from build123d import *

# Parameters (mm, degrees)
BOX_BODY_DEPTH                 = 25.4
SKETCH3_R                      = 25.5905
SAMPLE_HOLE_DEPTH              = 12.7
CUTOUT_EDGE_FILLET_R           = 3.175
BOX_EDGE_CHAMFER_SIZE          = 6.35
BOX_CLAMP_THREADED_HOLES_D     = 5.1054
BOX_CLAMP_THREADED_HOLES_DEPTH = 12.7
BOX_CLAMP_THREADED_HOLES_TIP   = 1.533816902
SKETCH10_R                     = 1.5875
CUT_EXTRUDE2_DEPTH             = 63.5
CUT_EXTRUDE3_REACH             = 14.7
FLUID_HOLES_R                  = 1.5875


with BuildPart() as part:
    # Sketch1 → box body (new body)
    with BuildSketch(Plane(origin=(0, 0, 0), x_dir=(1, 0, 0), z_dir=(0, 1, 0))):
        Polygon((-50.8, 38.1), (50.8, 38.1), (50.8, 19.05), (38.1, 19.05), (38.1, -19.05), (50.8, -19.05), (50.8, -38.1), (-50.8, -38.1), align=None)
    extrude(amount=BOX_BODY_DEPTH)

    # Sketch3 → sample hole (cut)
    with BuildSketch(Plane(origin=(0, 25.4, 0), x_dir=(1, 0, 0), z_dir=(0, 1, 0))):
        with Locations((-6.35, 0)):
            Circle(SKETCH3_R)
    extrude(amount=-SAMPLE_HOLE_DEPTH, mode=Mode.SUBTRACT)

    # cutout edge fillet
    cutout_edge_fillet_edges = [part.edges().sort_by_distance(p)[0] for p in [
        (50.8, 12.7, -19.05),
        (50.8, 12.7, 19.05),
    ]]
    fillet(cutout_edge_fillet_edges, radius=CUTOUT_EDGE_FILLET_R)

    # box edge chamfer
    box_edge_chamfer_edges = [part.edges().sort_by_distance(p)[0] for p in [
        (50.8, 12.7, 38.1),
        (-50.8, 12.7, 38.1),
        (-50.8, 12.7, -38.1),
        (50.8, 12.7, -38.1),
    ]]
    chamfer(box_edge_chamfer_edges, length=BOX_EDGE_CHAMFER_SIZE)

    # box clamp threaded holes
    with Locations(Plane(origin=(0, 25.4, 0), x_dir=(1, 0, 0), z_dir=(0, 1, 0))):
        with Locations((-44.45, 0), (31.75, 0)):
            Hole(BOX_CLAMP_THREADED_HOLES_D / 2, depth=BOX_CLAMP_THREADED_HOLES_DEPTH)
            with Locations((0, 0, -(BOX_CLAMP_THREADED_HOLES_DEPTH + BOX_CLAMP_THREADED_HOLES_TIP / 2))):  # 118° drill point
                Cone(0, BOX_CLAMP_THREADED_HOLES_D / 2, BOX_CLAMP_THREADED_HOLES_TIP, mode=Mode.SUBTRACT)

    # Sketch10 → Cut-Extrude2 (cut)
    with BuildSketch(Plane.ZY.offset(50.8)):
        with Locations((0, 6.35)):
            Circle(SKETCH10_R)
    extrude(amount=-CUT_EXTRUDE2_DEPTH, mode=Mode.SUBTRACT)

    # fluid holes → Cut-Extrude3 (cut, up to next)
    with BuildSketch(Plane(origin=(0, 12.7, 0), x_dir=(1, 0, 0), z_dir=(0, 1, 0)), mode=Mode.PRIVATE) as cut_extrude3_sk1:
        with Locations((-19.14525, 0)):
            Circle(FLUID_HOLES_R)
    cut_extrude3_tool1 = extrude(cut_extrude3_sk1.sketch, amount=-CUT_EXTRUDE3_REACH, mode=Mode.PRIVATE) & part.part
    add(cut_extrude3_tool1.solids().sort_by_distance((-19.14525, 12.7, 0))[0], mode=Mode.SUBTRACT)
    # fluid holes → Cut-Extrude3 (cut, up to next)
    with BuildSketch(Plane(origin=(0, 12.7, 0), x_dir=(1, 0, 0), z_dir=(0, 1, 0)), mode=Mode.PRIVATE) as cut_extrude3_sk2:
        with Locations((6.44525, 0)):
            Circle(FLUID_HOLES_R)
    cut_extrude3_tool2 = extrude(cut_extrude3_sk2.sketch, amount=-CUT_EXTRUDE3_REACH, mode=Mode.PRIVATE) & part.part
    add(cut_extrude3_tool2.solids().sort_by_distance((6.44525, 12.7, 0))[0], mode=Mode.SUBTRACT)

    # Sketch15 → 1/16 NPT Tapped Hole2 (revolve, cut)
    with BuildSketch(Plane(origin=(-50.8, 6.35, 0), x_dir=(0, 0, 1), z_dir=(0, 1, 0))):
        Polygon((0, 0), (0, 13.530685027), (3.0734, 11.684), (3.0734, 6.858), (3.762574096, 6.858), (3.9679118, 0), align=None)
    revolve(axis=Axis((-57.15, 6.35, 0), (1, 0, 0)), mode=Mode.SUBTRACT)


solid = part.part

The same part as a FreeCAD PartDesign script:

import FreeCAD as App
import Part
import Sketcher

V = App.Vector
Q = App.Units.Quantity


def edges_at(feature, points):
    """Names of the edges that pass closest to the given points."""
    edges = feature.Shape.Edges
    near = lambda p: min(range(len(edges)), key=lambda i: edges[i].distToShape(Part.Vertex(*p))[0])
    return sorted({f"Edge{near(p) + 1}" for p in points})


def add_polygon(sketch, points):
    """Adds a closed chain of lines whose ends are joined by coincident constraints."""
    first, n = sketch.GeometryCount, len(points)
    for a, b in zip(points, points[1:] + points[:1]):
        sketch.addGeometry(Part.LineSegment(App.Vector(*a, 0), App.Vector(*b, 0)), False)
    for i in range(n):
        sketch.addConstraint(Sketcher.Constraint("Coincident", first + i, 2, first + (i + 1) % n, 1))

doc = App.newDocument("Part")
params = doc.addObject("Spreadsheet::Sheet", "Params")
for row, (alias, value) in enumerate([
    ("sketch1_width", "4 in"),
    ("sketch1_height", "3 in"),
    ("sketch1_width2", "0.5 in"),
    ("sketch1_height2", "1.5 in"),
    ("pad1_length", "1 in"),
    ("sketch2_diameter", "2.015 in"),
    ("pocket1_length", "0.5 in"),
    ("fillet_radius", "0.125 in"),
    ("chamfer_size", "0.25 in"),
    ("sketch3_diameter", "0.201 in"),
    ("hole_diameter", "0.201 in"),
    ("hole_depth", "0.5 in"),
    ("sketch4_diameter", "0.125 in"),
    ("pocket2_length", "2.5 in"),
    ("sketch5_diameter", "0.125 in"),
    ("pocket3_length", "0.25 in"),
    ("sketch6_diameter", "0.125 in"),
    ("pocket4_length", "0.25 in"),
    ("sketch7_width", "0.19 in"),
    ("groove_angle", "360 deg"),
], start=1):
    params.set(f"A{row}", alias)
    params.set(f"B{row}", "=" + value)
    params.setAlias(f"B{row}", alias)

body = doc.addObject("PartDesign::Body", "Body")

# Sketch on XZ plane
sketch1 = body.newObject("Sketcher::SketchObject", "Sketch")
sketch1.AttachmentSupport = (doc.getObject("XZ_Plane"), [""])
sketch1.MapMode = "FlatFace"
add_polygon(sketch1, [(51, -38), (-51, -38), (-51, 38), (51, 38), (51, 19), (38, 19), (38, -19), (51, -19)])  # lines 0-7
sketch1.addConstraint([
    Sketcher.Constraint("Horizontal", 0),
    Sketcher.Constraint("Vertical", 1),
    Sketcher.Constraint("Horizontal", 2),
    Sketcher.Constraint("Vertical", 3),
    Sketcher.Constraint("Horizontal", 4),
    Sketcher.Constraint("Vertical", 5),
    Sketcher.Constraint("Horizontal", 6),
    Sketcher.Constraint("Vertical", 7),
    Sketcher.Constraint("Symmetric", 0, 2, 2, 2, -1, 1),
    Sketcher.Constraint("Symmetric", 3, 2, 6, 2, -1),
    Sketcher.Constraint("DistanceX", 0, 2, 0, 1, Q("4 in")),
    Sketcher.Constraint("DistanceY", 1, 1, 1, 2, Q("3 in")),
    Sketcher.Constraint("DistanceX", 4, 2, 4, 1, Q("0.5 in")),
    Sketcher.Constraint("DistanceY", 5, 2, 5, 1, Q("1.5 in")),
])
sketch1.setExpression("Constraints[18]", "Params.sketch1_width")
sketch1.setExpression("Constraints[19]", "Params.sketch1_height")
sketch1.setExpression("Constraints[20]", "Params.sketch1_width2")
sketch1.setExpression("Constraints[21]", "Params.sketch1_height2")
pad1 = body.newObject("PartDesign::Pad", "Pad")
pad1.Profile = sketch1
pad1.setExpression("Length", "Params.pad1_length")
pad1.Reversed = True

# Sketch on XZ plane
sketch2 = body.newObject("Sketcher::SketchObject", "Sketch001")
sketch2.AttachmentSupport = (doc.getObject("XZ_Plane"), [""])
sketch2.MapMode = "FlatFace"
sketch2.AttachmentOffset = App.Placement(V(0, 0, -1 * 25.4), App.Rotation())
sketch2.addGeometry(Part.Circle(V(-6, 0, 0), V(0, 0, 1), 26), False)
sketch2.addConstraint([
    Sketcher.Constraint("PointOnObject", 0, 3, -1),
    Sketcher.Constraint("Diameter", 0, Q("2.015 in")),
    Sketcher.Constraint("DistanceX", 0, 3, -1, 1, Q("0.25 in")),
])
sketch2.setExpression("Constraints[1]", "Params.sketch2_diameter")
pocket1 = body.newObject("PartDesign::Pocket", "Pocket")
pocket1.Profile = sketch2
pocket1.setExpression("Length", "Params.pocket1_length")
pocket1.Reversed = True
doc.recompute()

fillet = body.newObject("PartDesign::Fillet", "Fillet")
fillet.Base = (pocket1, edges_at(pocket1, [(50.8, 12.7, -19.05), (50.8, 12.7, 19.05)]))
fillet.setExpression("Radius", "Params.fillet_radius")
doc.recompute()

chamfer = body.newObject("PartDesign::Chamfer", "Chamfer")
chamfer.Base = (fillet, edges_at(fillet, [
    (50.8, 12.7, 38.1),
    (-50.8, 12.7, 38.1),
    (-50.8, 12.7, -38.1),
    (50.8, 12.7, -38.1),
]))
chamfer.setExpression("Size", "Params.chamfer_size")

# Sketch on XZ plane
sketch3 = body.newObject("Sketcher::SketchObject", "Sketch002")
sketch3.AttachmentSupport = (doc.getObject("XZ_Plane"), [""])
sketch3.MapMode = "FlatFace"
sketch3.AttachmentOffset = App.Placement(V(0, 0, -1 * 25.4), App.Rotation())
sketch3.addGeometry([
    Part.Circle(V(-44.5, 0, 0), V(0, 0, 1), 2.6),
    Part.Circle(V(31.8, 0, 0), V(0, 0, 1), 2.6),
], False)
sketch3.addConstraint([
    Sketcher.Constraint("Equal", 0, 1),
    Sketcher.Constraint("PointOnObject", 0, 3, -1),
    Sketcher.Constraint("PointOnObject", 1, 3, -1),
    Sketcher.Constraint("Diameter", 0, Q("0.201 in")),
    Sketcher.Constraint("DistanceX", 0, 3, 1, 3, Q("3 in")),
    Sketcher.Constraint("DistanceX", 0, 3, -1, 1, Q("1.75 in")),
])
sketch3.setExpression("Constraints[3]", "Params.sketch3_diameter")
doc.recompute()
hole = body.newObject("PartDesign::Hole", "Hole")
hole.Profile = sketch3
hole.ThreadType = "None"
hole.setExpression("Diameter", "Params.hole_diameter")
hole.DepthType = "Dimension"
hole.setExpression("Depth", "Params.hole_depth")
hole.DrillPoint = "Angled"
hole.DrillPointAngle = 118
hole.Reversed = True

# Sketch on YZ plane
sketch4 = body.newObject("Sketcher::SketchObject", "Sketch003")
sketch4.AttachmentSupport = (doc.getObject("YZ_Plane"), [""])
sketch4.MapMode = "FlatFace"
sketch4.AttachmentOffset = App.Placement(V(0, 0, -2 * 25.4), App.Rotation())
sketch4.addGeometry(Part.Circle(V(6.3, 0, 0), V(0, 0, 1), 1.6), False)
sketch4.addConstraint([
    Sketcher.Constraint("PointOnObject", 0, 3, -1),
    Sketcher.Constraint("Diameter", 0, Q("0.125 in")),
    Sketcher.Constraint("DistanceX", -1, 1, 0, 3, Q("0.25 in")),
])
sketch4.setExpression("Constraints[1]", "Params.sketch4_diameter")
pocket2 = body.newObject("PartDesign::Pocket", "Pocket001")
pocket2.Profile = sketch4
pocket2.setExpression("Length", "Params.pocket2_length")
pocket2.Reversed = True

# Sketch on XZ plane
sketch5 = body.newObject("Sketcher::SketchObject", "Sketch004")
sketch5.AttachmentSupport = (doc.getObject("XZ_Plane"), [""])
sketch5.MapMode = "FlatFace"
sketch5.AttachmentOffset = App.Placement(V(0, 0, -0.5 * 25.4), App.Rotation())
sketch5.addGeometry(Part.Circle(V(-19.1, 0, 0), V(0, 0, 1), 1.6), False)
sketch5.addConstraint([
    Sketcher.Constraint("PointOnObject", 0, 3, -1),
    Sketcher.Constraint("Diameter", 0, Q("0.125 in")),
    Sketcher.Constraint("DistanceX", 0, 3, -1, 1, 19.14525),
])
sketch5.setExpression("Constraints[1]", "Params.sketch5_diameter")
pocket3 = body.newObject("PartDesign::Pocket", "Pocket002")
pocket3.Profile = sketch5
pocket3.setExpression("Length", "Params.pocket3_length")
pocket3.Reversed = True

# Sketch on XZ plane
sketch6 = body.newObject("Sketcher::SketchObject", "Sketch005")
sketch6.AttachmentSupport = (doc.getObject("XZ_Plane"), [""])
sketch6.MapMode = "FlatFace"
sketch6.AttachmentOffset = App.Placement(V(0, 0, -0.5 * 25.4), App.Rotation())
sketch6.addGeometry(Part.Circle(V(6.4, 0, 0), V(0, 0, 1), 1.6), False)
sketch6.addConstraint([
    Sketcher.Constraint("PointOnObject", 0, 3, -1),
    Sketcher.Constraint("Diameter", 0, Q("0.125 in")),
    Sketcher.Constraint("DistanceX", -1, 1, 0, 3, 6.44525),
])
sketch6.setExpression("Constraints[1]", "Params.sketch6_diameter")
pocket4 = body.newObject("PartDesign::Pocket", "Pocket003")
pocket4.Profile = sketch6
pocket4.setExpression("Length", "Params.pocket4_length")
pocket4.Reversed = True

# Sketch on XZ plane
sketch7 = body.newObject("Sketcher::SketchObject", "Sketch006")
sketch7.AttachmentSupport = (doc.getObject("XZ_Plane"), [""])
sketch7.MapMode = "FlatFace"
sketch7.AttachmentOffset = App.Placement(V(0, 0, -0.25 * 25.4), App.Rotation())
add_polygon(sketch7, [(-37.3, 0), (-50.8, 0), (-50.8, 4), (-43.9, 3.8), (-43.9, 3.1), (-39.1, 3.1)])  # lines 0-5
sketch7.addConstraint([
    Sketcher.Constraint("Horizontal", 0),
    Sketcher.Constraint("Vertical", 1),
    Sketcher.Constraint("Vertical", 3),
    Sketcher.Constraint("Horizontal", 4),
    Sketcher.Constraint("PointOnObject", 0, 2, -1),
    Sketcher.Constraint("DistanceX", 0, 2, -1, 1, Q("2 in")),
    Sketcher.Constraint("Angle", 5, Q("-59 deg")),
    Sketcher.Constraint("DistanceX", 4, 1, 4, 2, Q("0.19 in")),
    Sketcher.Constraint("DistanceX", 2, 2, -1, 1, Q("1.73 in")),
    Sketcher.Constraint("DistanceY", -1, 1, 3, 2, Q("0.121 in")),
    Sketcher.Constraint("DistanceY", 1, 1, 1, 2, 3.967912),
    Sketcher.Constraint("DistanceY", 3, 2, 3, 1, 0.689174),
])
sketch7.setExpression("Constraints[13]", "Params.sketch7_width")
groove = body.newObject("PartDesign::Groove", "Groove")
groove.Profile = sketch7
groove.ReferenceAxis = (sketch7, ["H_Axis"])
groove.setExpression("Angle", "Params.groove_angle")

doc.recompute()
